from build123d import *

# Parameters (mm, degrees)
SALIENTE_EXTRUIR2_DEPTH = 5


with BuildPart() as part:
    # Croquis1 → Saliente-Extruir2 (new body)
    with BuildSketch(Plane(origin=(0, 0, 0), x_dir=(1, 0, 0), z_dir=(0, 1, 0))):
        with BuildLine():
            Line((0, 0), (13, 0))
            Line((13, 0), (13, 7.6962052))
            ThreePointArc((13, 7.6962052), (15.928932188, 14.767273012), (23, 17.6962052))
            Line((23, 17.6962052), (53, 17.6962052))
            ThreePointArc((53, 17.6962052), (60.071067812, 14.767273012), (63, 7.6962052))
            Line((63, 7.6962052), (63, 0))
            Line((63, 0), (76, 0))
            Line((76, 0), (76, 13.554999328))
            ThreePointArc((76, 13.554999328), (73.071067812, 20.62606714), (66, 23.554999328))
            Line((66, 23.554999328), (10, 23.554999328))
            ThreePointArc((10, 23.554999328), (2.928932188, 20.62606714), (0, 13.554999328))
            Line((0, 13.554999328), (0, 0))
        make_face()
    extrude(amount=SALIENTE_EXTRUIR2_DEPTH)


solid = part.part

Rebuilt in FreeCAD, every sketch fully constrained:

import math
import FreeCAD as App
import Part
import Sketcher

V = App.Vector

doc = App.newDocument("Part")
params = doc.addObject("Spreadsheet::Sheet", "Params")
for row, (alias, value) in enumerate([
    ("sketch1_radius", "10 mm"),
    ("sketch1_width", "13 mm"),
    ("sketch1_width2", "30 mm"),
    ("pad1_length", "5 mm"),
], start=1):
    params.set(f"A{row}", alias)
    params.set(f"B{row}", "=" + value)
    params.setAlias(f"B{row}", alias)

body = doc.addObject("PartDesign::Body", "Body")

# Sketch on XZ plane
sketch1 = body.newObject("Sketcher::SketchObject", "Sketch")
sketch1.AttachmentSupport = (doc.getObject("XZ_Plane"), [""])
sketch1.MapMode = "FlatFace"
sketch1.addGeometry(Part.LineSegment(V(0, 0, 0), V(13, 0, 0)), False)
sketch1.addGeometry(Part.LineSegment(V(13, 0, 0), V(13, -7.696205, 0)), False)
sketch1.addGeometry(Part.ArcOfCircle(Part.Circle(V(23, -7.696205, 0), V(0, 0, 1), 10), math.radians(180), math.radians(270)), False)
sketch1.addGeometry(Part.LineSegment(V(23, -17.696205, 0), V(53, -17.696205, 0)), False)
sketch1.addGeometry(Part.ArcOfCircle(Part.Circle(V(53, -7.696205, 0), V(0, 0, 1), 10), math.radians(-90), math.radians(0)), False)
sketch1.addGeometry(Part.LineSegment(V(63, -7.696205, 0), V(63, 0, 0)), False)
sketch1.addGeometry(Part.LineSegment(V(63, 0, 0), V(76, 0, 0)), False)
sketch1.addGeometry(Part.LineSegment(V(76, 0, 0), V(76, -13.554999, 0)), False)
sketch1.addGeometry(Part.ArcOfCircle(Part.Circle(V(66, -13.554999, 0), V(0, 0, 1), 10), math.radians(-90), math.radians(0)), False)
sketch1.addGeometry(Part.LineSegment(V(66, -23.554999, 0), V(10, -23.554999, 0)), False)
sketch1.addGeometry(Part.ArcOfCircle(Part.Circle(V(10, -13.554999, 0), V(0, 0, 1), 10), math.radians(180), math.radians(270)), False)
sketch1.addGeometry(Part.LineSegment(V(0, -13.554999, 0), V(0, 0, 0)), False)
sketch1.addConstraint(Sketcher.Constraint("Coincident", 0, 2, 1, 1))
sketch1.addConstraint(Sketcher.Constraint("Tangent", 1, 2, 2, 1))
sketch1.addConstraint(Sketcher.Constraint("Tangent", 2, 2, 3, 1))
sketch1.addConstraint(Sketcher.Constraint("Tangent", 3, 2, 4, 1))
sketch1.addConstraint(Sketcher.Constraint("Tangent", 4, 2, 5, 1))
sketch1.addConstraint(Sketcher.Constraint("Coincident", 5, 2, 6, 1))
sketch1.addConstraint(Sketcher.Constraint("Coincident", 6, 2, 7, 1))
sketch1.addConstraint(Sketcher.Constraint("Tangent", 7, 2, 8, 2))
sketch1.addConstraint(Sketcher.Constraint("Tangent", 8, 1, 9, 1))
sketch1.addConstraint(Sketcher.Constraint("Tangent", 9, 2, 10, 2))
sketch1.addConstraint(Sketcher.Constraint("Tangent", 10, 1, 11, 1))
sketch1.addConstraint(Sketcher.Constraint("Coincident", 11, 2, 0, 1))
sketch1.addConstraint(Sketcher.Constraint("Horizontal", 0))
sketch1.addConstraint(Sketcher.Constraint("Vertical", 1))
sketch1.addConstraint(Sketcher.Constraint("Horizontal", 3))
sketch1.addConstraint(Sketcher.Constraint("Vertical", 5))
sketch1.addConstraint(Sketcher.Constraint("Horizontal", 6))
sketch1.addConstraint(Sketcher.Constraint("Vertical", 7))
sketch1.addConstraint(Sketcher.Constraint("Horizontal", 9))
sketch1.addConstraint(Sketcher.Constraint("Vertical", 11))
sketch1.addConstraint(Sketcher.Constraint("Coincident", 11, 2, -1, 1))
sketch1.addConstraint(Sketcher.Constraint("Equal", 2, 4))
sketch1.addConstraint(Sketcher.Constraint("Equal", 4, 8))
sketch1.addConstraint(Sketcher.Constraint("Equal", 8, 10))
sketch1.addConstraint(Sketcher.Constraint("PointOnObject", 5, 2, -1))
sketch1.addConstraint(Sketcher.Constraint("Equal", 0, 6))
sketch1.addConstraint(Sketcher.Constraint("Radius", 2, 10.0))
sketch1.addConstraint(Sketcher.Constraint("DistanceX", 0, 1, 0, 2, 13.0))
sketch1.addConstraint(Sketcher.Constraint("DistanceX", 3, 1, 3, 2, 30.0))
sketch1.addConstraint(Sketcher.Constraint("DistanceY", 7, 2, 7, 1, 13.554999))
sketch1.addConstraint(Sketcher.Constraint("DistanceY", 1, 2, 1, 1, 7.696205))
sketch1.setExpression("Constraints[26]", "Params.sketch1_radius")
sketch1.setExpression("Constraints[27]", "Params.sketch1_width")
sketch1.setExpression("Constraints[28]", "Params.sketch1_width2")
pad1 = body.newObject("PartDesign::Pad", "Pad")
pad1.Profile = sketch1
pad1.setExpression("Length", "Params.pad1_length")
pad1.Reversed = True

doc.recompute()
